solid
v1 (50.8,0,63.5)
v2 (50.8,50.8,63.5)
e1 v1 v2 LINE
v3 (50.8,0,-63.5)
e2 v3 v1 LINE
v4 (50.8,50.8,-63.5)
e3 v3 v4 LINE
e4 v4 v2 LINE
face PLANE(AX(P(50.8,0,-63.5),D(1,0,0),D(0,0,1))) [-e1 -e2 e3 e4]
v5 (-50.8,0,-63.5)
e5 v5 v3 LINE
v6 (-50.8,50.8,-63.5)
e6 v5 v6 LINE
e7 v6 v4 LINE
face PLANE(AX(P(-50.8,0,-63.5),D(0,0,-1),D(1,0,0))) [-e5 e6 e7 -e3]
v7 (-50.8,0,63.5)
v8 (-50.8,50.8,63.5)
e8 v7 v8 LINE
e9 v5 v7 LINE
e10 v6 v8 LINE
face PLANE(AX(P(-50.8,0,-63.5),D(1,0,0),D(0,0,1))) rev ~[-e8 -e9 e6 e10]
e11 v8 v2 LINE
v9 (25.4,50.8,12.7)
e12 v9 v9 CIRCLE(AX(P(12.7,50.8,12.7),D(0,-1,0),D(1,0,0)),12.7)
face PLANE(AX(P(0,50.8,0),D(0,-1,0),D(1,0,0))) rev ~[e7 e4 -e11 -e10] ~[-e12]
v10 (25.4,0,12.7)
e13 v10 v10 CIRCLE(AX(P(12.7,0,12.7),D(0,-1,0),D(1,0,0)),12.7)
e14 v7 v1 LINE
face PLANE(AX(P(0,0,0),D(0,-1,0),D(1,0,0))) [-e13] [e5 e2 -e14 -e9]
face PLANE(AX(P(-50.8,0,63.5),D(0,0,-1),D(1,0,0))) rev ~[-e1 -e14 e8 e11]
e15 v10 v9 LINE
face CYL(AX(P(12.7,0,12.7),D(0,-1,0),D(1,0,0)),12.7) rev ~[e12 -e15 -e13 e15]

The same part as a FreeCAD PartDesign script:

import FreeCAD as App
import Part
import Sketcher

V = App.Vector
Q = App.Units.Quantity


def add_polygon(sketch, points):
    """Adds a closed chain of lines whose ends are joined by coincident constraints."""
    first, n = sketch.GeometryCount, len(points)
    for a, b in zip(points, points[1:] + points[:1]):
        sketch.addGeometry(Part.LineSegment(App.Vector(*a, 0), App.Vector(*b, 0)), False)
    for i in range(n):
        sketch.addConstraint(Sketcher.Constraint("Coincident", first + i, 2, first + (i + 1) % n, 1))

doc = App.newDocument("Part")
params = doc.addObject("Spreadsheet::Sheet", "Params")
for row, (alias, value) in enumerate([
    ("sketch1_width", "4 in"),
    ("sketch1_height", "5 in"),
    ("pad1_length", "2 in"),
    ("sketch2_diameter", "1 in"),
], start=1):
    params.set(f"A{row}", alias)
    params.set(f"B{row}", "=" + value)
    params.setAlias(f"B{row}", alias)

body = doc.addObject("PartDesign::Body", "Body")

sketch1 = doc.addObject("Sketcher::SketchObject", "Sketch")
body.addObject(sketch1)
sketch1.AttachmentSupport = (doc.XZ_Plane, [""])
sketch1.MapMode = "FlatFace"
add_polygon(sketch1, [(-51, 64), (-51, -64), (51, -64), (51, 64)])
sketch1.addConstraint(Sketcher.Constraint("Vertical", 0))
sketch1.addConstraint(Sketcher.Constraint("Horizontal", 1))
sketch1.addConstraint(Sketcher.Constraint("Vertical", 2))
sketch1.addConstraint(Sketcher.Constraint("Horizontal", 3))
sketch1.addConstraint(Sketcher.Constraint("Symmetric", 0, 2, 2, 2, -1, 1))
sketch1.addConstraint(Sketcher.Constraint("DistanceX", 1, 1, 1, 2, Q("4 in")))
sketch1.addConstraint(Sketcher.Constraint("DistanceY", 0, 2, 0, 1, Q("5 in")))
sketch1.setExpression("Constraints[9]", "Params.sketch1_width")
sketch1.setExpression("Constraints[10]", "Params.sketch1_height")
pad1 = doc.addObject("PartDesign::Pad", "Pad")
body.addObject(pad1)
pad1.Profile = sketch1
pad1.setExpression("Length", "Params.pad1_length")
pad1.Reversed = True

sketch2 = doc.addObject("Sketcher::SketchObject", "Sketch001")
body.addObject(sketch2)
sketch2.AttachmentSupport = (doc.XZ_Plane, [""])
sketch2.MapMode = "FlatFace"
sketch2.addGeometry(Part.Circle(V(13, 13, 0), V(0, 0, 1), 13), False)
sketch2.addConstraint(Sketcher.Constraint("Diameter", 0, Q("1 in")))
sketch2.addConstraint(Sketcher.Constraint("DistanceX", -1, 1, 0, 3, Q("0.5 in")))
sketch2.addConstraint(Sketcher.Constraint("DistanceY", -1, 1, 0, 3, Q("0.5 in")))
sketch2.setExpression("Constraints[0]", "Params.sketch2_diameter")
pocket1 = doc.addObject("PartDesign::Pocket", "Pocket")
body.addObject(pocket1)
pocket1.Profile = sketch2
pocket1.Type = "ThroughAll"

doc.recompute()
